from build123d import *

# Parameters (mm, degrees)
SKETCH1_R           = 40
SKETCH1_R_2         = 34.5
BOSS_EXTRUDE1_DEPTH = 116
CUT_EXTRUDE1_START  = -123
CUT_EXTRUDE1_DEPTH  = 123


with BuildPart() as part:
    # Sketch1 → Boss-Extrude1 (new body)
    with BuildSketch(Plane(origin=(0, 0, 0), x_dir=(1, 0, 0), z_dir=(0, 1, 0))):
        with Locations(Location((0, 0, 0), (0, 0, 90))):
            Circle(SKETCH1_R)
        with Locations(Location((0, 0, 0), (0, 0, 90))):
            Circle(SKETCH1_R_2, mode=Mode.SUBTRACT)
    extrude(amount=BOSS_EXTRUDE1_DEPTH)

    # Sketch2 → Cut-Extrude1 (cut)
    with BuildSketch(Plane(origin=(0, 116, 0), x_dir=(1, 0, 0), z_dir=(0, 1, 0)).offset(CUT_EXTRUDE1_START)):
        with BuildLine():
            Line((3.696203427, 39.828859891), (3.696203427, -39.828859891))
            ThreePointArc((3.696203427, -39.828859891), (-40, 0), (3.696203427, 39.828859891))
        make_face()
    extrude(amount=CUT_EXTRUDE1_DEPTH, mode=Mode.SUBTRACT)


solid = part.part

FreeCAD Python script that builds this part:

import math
import FreeCAD as App
import Part
import Sketcher

V = App.Vector

doc = App.newDocument("Part")
params = doc.addObject("Spreadsheet::Sheet", "Params")
for row, (alias, value) in enumerate([
    ("sketch1_diameter", "80 mm"),
    ("sketch1_diameter2", "69 mm"),
    ("pad1_length", "116 mm"),
    ("sketch2_radius", "40 mm"),
    ("pocket1_length", "123 mm"),
], start=1):
    params.set(f"A{row}", alias)
    params.set(f"B{row}", "=" + value)
    params.setAlias(f"B{row}", alias)

body = doc.addObject("PartDesign::Body", "Body")

sketch1 = body.newObject("Sketcher::SketchObject", "Sketch")
sketch1.AttachmentSupport = (doc.getObject("XZ_Plane"), [""])
sketch1.MapMode = "FlatFace"
sketch1.addGeometry([
    Part.Circle(V(0, 0, 0), V(0, 0, 1), 40),
    Part.Circle(V(0, 0, 0), V(0, 0, 1), 34),
], False)
sketch1.addConstraint([
    Sketcher.Constraint("Coincident", 0, 3, -1, 1),
    Sketcher.Constraint("Coincident", 1, 3, -1, 1),
    Sketcher.Constraint("Diameter", 0, 80.0),
    Sketcher.Constraint("Diameter", 1, 69.0),
])
sketch1.setExpression("Constraints[2]", "Params.sketch1_diameter")
sketch1.setExpression("Constraints[3]", "Params.sketch1_diameter2")
pad1 = body.newObject("PartDesign::Pad", "Pad")
pad1.Profile = sketch1
pad1.setExpression("Length", "Params.pad1_length")
pad1.Reversed = True

sketch2 = body.newObject("Sketcher::SketchObject", "Sketch001")
sketch2.AttachmentSupport = (doc.getObject("XZ_Plane"), [""])
sketch2.MapMode = "FlatFace"
sketch2.AttachmentOffset = App.Placement(V(0, 0, 7), App.Rotation())
sketch2.addGeometry([
    Part.LineSegment(V(4, 40, 0), V(4, -40, 0)),
    Part.ArcOfCircle(Part.Circle(V(0, 0, 0), V(0, 0, 1), 40), math.radians(85), math.radians(275)),
], False)
sketch2.addConstraint([
    Sketcher.Constraint("Coincident", 0, 1, 1, 1),
    Sketcher.Constraint("Coincident", 1, 2, 0, 2),
    Sketcher.Constraint("Vertical", 0),
    Sketcher.Constraint("Coincident", 1, 3, -1, 1),
    Sketcher.Constraint("Radius", 1, 40.0),
    Sketcher.Constraint("DistanceY", 0, 2, 0, 1, 79.65772),
])
sketch2.setExpression("Constraints[4]", "Params.sketch2_radius")
pocket1 = body.newObject("PartDesign::Pocket", "Pocket")
pocket1.Profile = sketch2
pocket1.setExpression("Length", "Params.pocket1_length")

doc.recompute()
